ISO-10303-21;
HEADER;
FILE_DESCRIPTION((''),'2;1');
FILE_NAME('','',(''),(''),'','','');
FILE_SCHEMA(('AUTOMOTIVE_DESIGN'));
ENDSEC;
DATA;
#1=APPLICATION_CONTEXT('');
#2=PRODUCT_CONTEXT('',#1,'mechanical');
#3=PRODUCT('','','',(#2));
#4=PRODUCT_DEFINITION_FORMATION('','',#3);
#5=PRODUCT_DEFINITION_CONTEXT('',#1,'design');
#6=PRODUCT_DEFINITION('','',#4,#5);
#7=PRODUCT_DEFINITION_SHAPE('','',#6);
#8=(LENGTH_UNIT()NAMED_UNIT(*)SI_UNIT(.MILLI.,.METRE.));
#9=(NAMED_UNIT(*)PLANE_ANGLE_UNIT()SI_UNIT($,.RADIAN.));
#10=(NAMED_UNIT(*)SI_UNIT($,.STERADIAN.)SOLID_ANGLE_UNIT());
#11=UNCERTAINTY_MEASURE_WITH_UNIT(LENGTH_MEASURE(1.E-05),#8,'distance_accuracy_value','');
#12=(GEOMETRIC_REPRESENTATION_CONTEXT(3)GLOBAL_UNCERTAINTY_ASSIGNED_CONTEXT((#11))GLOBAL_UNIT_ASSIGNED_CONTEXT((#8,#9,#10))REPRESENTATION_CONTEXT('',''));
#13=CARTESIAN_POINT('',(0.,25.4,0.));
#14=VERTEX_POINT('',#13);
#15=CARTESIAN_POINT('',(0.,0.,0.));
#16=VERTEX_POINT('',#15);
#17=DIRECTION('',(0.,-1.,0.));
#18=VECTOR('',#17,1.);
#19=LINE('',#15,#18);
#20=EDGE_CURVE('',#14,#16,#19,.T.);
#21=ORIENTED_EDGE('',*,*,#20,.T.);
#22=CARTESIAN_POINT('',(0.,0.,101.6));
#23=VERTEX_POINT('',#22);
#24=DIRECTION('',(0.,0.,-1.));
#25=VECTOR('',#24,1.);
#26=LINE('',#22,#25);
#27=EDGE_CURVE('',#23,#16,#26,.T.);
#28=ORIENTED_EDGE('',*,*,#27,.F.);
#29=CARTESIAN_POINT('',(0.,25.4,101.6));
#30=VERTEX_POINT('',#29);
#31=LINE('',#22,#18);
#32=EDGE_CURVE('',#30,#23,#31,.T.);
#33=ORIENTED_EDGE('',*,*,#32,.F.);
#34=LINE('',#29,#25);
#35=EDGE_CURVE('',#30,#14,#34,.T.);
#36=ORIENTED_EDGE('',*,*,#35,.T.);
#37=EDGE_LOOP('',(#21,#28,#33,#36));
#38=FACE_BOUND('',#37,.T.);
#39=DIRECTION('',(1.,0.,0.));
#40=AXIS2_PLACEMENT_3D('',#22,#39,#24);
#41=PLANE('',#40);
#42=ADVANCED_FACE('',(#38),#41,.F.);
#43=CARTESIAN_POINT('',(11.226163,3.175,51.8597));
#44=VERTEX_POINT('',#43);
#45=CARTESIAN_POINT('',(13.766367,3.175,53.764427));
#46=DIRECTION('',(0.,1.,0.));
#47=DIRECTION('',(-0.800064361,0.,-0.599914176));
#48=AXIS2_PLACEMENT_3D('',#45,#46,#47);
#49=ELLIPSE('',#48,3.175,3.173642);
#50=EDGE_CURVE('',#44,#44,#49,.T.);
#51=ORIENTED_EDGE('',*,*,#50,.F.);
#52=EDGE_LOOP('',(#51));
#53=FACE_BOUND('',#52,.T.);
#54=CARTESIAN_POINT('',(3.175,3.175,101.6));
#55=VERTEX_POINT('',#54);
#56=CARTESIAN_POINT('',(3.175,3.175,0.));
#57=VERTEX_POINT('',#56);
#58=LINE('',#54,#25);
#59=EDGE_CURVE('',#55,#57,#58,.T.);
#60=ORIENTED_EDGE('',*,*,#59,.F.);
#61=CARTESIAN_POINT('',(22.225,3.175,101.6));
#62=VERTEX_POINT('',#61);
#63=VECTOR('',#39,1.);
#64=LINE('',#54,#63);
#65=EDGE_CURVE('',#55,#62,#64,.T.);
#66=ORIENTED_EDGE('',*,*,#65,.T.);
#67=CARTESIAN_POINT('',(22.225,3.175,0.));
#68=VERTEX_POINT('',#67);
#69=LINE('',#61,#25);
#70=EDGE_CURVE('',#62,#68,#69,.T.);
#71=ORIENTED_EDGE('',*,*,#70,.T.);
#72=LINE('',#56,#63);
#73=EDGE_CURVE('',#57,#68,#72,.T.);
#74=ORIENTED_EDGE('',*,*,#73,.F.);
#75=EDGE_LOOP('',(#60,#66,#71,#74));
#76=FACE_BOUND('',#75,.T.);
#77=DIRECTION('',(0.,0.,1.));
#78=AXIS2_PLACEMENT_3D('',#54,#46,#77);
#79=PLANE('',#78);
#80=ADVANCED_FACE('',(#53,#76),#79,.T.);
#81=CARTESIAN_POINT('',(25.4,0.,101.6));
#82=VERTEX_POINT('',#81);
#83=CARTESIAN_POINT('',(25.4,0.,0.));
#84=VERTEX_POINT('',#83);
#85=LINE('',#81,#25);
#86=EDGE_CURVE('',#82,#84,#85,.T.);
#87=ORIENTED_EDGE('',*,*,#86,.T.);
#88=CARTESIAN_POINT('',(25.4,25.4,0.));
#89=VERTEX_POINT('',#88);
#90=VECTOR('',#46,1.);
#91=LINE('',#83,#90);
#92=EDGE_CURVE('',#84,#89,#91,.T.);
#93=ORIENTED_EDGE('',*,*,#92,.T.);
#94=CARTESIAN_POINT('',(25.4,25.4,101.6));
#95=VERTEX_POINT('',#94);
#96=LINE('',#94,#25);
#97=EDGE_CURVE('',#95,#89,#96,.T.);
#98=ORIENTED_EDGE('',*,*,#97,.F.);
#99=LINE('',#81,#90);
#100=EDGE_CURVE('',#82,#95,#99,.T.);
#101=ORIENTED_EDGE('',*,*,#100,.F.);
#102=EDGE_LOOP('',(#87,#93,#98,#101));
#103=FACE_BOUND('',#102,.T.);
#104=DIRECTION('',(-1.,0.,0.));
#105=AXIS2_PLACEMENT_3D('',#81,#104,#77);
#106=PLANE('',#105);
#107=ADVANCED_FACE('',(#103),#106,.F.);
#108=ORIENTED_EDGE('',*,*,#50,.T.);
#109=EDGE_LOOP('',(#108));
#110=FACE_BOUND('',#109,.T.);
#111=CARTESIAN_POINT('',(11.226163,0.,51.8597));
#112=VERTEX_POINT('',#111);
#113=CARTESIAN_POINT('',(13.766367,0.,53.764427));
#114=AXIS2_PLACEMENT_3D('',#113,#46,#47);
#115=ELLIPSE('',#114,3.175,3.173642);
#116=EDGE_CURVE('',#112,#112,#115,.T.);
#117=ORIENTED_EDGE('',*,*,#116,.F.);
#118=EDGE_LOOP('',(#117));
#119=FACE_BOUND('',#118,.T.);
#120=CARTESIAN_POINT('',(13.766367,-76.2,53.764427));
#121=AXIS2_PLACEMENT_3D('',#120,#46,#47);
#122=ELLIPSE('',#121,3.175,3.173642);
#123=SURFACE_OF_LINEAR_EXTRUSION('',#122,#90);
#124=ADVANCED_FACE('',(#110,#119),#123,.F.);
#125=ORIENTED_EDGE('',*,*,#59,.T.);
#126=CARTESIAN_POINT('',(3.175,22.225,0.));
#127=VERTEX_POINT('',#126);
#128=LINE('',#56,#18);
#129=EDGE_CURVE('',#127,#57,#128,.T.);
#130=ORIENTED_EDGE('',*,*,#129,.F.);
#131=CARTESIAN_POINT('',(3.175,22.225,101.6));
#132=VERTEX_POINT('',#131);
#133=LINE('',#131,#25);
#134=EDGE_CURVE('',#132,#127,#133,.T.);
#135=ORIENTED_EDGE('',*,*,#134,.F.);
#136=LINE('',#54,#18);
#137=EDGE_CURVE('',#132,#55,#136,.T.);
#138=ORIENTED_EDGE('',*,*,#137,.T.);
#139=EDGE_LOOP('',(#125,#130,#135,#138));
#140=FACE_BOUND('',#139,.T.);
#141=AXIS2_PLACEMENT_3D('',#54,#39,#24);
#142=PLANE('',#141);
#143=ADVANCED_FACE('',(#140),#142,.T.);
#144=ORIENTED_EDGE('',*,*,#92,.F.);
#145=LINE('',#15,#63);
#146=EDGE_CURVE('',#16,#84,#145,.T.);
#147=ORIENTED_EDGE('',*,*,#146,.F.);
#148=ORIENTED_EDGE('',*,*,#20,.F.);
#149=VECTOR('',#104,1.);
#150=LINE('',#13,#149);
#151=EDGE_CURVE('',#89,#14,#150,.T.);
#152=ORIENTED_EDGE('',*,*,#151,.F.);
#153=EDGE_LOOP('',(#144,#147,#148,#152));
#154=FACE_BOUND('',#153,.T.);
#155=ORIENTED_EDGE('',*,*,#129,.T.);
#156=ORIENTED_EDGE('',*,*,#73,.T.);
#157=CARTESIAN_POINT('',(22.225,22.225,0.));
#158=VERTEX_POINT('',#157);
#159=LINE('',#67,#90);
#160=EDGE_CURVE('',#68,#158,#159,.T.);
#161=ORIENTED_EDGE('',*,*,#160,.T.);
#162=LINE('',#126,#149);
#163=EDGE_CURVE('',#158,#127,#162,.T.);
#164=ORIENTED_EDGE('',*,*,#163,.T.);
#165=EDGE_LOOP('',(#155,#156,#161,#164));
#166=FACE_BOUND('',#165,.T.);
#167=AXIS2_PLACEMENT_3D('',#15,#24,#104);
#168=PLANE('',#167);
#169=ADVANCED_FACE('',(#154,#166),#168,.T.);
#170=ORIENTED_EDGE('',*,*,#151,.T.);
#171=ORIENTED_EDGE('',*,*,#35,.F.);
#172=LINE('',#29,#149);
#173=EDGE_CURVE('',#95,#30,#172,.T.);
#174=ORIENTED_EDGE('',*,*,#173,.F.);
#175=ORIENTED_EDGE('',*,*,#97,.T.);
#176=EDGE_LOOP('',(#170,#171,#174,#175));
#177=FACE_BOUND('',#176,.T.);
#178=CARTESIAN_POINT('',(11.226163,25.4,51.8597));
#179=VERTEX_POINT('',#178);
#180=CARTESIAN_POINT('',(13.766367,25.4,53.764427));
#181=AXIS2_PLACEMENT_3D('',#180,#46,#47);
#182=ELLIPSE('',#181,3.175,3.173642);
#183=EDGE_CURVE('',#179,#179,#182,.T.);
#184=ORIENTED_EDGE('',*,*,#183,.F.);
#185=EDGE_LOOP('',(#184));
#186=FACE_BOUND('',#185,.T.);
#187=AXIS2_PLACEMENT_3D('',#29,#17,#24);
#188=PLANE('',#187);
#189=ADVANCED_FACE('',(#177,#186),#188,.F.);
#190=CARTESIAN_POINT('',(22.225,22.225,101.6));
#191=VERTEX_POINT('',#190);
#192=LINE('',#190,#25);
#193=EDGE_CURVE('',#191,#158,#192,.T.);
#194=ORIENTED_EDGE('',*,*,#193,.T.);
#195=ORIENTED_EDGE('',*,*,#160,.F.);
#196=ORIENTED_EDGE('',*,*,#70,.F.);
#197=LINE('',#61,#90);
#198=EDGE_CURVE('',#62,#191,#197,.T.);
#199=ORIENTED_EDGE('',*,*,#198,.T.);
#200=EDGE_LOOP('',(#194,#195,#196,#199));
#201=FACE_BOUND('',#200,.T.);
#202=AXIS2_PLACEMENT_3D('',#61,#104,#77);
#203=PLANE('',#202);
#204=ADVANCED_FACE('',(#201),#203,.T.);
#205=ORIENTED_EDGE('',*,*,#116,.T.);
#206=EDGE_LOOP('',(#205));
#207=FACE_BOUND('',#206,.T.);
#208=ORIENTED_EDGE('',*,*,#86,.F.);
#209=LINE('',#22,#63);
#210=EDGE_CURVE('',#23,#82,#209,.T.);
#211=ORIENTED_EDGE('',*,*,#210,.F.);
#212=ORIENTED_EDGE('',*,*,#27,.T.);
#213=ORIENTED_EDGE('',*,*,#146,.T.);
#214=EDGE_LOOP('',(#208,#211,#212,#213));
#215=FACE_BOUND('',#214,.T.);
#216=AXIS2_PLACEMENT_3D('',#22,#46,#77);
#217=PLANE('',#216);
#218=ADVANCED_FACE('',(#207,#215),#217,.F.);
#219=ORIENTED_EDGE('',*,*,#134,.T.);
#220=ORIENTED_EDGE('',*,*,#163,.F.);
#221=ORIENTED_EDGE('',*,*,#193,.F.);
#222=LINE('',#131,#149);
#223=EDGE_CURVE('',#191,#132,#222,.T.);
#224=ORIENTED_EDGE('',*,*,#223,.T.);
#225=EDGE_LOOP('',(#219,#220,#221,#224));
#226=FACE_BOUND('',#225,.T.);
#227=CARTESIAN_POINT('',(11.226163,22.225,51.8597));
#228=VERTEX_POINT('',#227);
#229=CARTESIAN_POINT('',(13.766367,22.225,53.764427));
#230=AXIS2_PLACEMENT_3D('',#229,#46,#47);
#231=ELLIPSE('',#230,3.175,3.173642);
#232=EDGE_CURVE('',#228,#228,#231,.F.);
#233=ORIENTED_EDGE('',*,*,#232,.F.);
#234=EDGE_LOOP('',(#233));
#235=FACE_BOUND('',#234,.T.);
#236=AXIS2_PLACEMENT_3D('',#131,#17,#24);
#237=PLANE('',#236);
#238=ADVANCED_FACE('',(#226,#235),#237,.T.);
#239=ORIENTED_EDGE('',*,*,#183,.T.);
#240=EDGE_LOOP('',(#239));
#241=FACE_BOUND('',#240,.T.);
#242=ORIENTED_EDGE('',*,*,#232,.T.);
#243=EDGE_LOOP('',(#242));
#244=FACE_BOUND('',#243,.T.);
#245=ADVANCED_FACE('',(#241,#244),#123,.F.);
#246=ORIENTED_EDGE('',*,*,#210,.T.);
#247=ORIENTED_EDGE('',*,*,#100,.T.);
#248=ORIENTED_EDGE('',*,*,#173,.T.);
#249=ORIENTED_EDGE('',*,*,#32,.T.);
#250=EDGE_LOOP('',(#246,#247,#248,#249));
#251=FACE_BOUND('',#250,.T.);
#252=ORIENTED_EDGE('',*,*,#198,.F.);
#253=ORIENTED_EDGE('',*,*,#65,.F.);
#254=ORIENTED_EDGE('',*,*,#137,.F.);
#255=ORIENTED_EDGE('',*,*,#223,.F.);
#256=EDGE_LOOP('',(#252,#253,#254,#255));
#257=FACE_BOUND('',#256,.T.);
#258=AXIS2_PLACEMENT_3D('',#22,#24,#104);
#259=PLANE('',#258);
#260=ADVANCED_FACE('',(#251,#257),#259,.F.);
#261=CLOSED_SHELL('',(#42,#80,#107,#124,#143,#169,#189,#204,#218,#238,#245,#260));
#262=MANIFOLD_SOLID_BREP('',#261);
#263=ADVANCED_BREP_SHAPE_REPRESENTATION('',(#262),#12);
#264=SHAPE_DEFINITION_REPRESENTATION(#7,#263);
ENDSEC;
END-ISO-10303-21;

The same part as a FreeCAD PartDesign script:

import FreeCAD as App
import Part
import Sketcher
Q = App.Units.Quantity

doc = App.newDocument("Part")
body = doc.addObject("PartDesign::Body", "Body")

# Sketch on XY plane
sketch1 = body.newObject("Sketcher::SketchObject", "Sketch")
sketch1.AttachmentSupport = (doc.getObject("XY_Plane"), [""])
sketch1.MapMode = "FlatFace"
sketch1.addGeometry(Part.LineSegment(App.Vector(0, 25, 0), App.Vector(0, 0, 0)), False)
sketch1.addGeometry(Part.LineSegment(App.Vector(0, 0, 0), App.Vector(25, 0, 0)), False)
sketch1.addGeometry(Part.LineSegment(App.Vector(25, 0, 0), App.Vector(25, 25, 0)), False)
sketch1.addGeometry(Part.LineSegment(App.Vector(25, 25, 0), App.Vector(0, 25, 0)), False)
sketch1.addGeometry(Part.LineSegment(App.Vector(22, 3, 0), App.Vector(3, 3, 0)), False)
sketch1.addGeometry(Part.LineSegment(App.Vector(3, 3, 0), App.Vector(3, 22, 0)), False)
sketch1.addGeometry(Part.LineSegment(App.Vector(3, 22, 0), App.Vector(22, 22, 0)), False)
sketch1.addGeometry(Part.LineSegment(App.Vector(22, 22, 0), App.Vector(22, 3, 0)), False)
sketch1.addConstraint(Sketcher.Constraint("Coincident", 0, 2, 1, 1))
sketch1.addConstraint(Sketcher.Constraint("Coincident", 1, 2, 2, 1))
sketch1.addConstraint(Sketcher.Constraint("Coincident", 2, 2, 3, 1))
sketch1.addConstraint(Sketcher.Constraint("Coincident", 3, 2, 0, 1))
sketch1.addConstraint(Sketcher.Constraint("Coincident", 4, 2, 5, 1))
sketch1.addConstraint(Sketcher.Constraint("Coincident", 5, 2, 6, 1))
sketch1.addConstraint(Sketcher.Constraint("Coincident", 6, 2, 7, 1))
sketch1.addConstraint(Sketcher.Constraint("Coincident", 7, 2, 4, 1))
sketch1.addConstraint(Sketcher.Constraint("Vertical", 0))
sketch1.addConstraint(Sketcher.Constraint("Horizontal", 1))
sketch1.addConstraint(Sketcher.Constraint("Vertical", 2))
sketch1.addConstraint(Sketcher.Constraint("Horizontal", 3))
sketch1.addConstraint(Sketcher.Constraint("Horizontal", 4))
sketch1.addConstraint(Sketcher.Constraint("Vertical", 5))
sketch1.addConstraint(Sketcher.Constraint("Horizontal", 6))
sketch1.addConstraint(Sketcher.Constraint("Vertical", 7))
sketch1.addConstraint(Sketcher.Constraint("Coincident", 0, 2, -1, 1))
sketch1.addConstraint(Sketcher.Constraint("Equal", 3, 0))
sketch1.addConstraint(Sketcher.Constraint("Equal", 6, 5))
sketch1.addConstraint(Sketcher.Constraint("DistanceX", 1, 1, 1, 2, Q("1 in")))
sketch1.addConstraint(Sketcher.Constraint("DistanceX", 4, 2, 4, 1, Q("0.75 in")))
sketch1.addConstraint(Sketcher.Constraint("DistanceX", -1, 1, 4, 2, Q("0.125 in")))
sketch1.addConstraint(Sketcher.Constraint("DistanceY", -1, 1, 4, 2, Q("0.125 in")))
pad1 = body.newObject("PartDesign::Pad", "Pad")
pad1.Profile = sketch1
pad1.Length = Q("4 in")

# Sketch on XZ plane
sketch2 = body.newObject("Sketcher::SketchObject", "Sketch001")
sketch2.AttachmentSupport = (doc.getObject("XZ_Plane"), [""])
sketch2.MapMode = "FlatFace"
sketch2.AttachmentOffset = App.Placement(App.Vector(0, 0, -1 * 25.4), App.Rotation())
sketch2.addGeometry(Part.Ellipse(App.Vector(16.306572, 55.669155, 0), App.Vector(11.862455, 56.303545, 0), App.Vector(13.766367, 53.764427, 0)), False)
sketch2.addConstraint(Sketcher.Constraint("Block", 0))
pocket1 = body.newObject("PartDesign::Pocket", "Pocket")
pocket1.Profile = sketch2
pocket1.Length = Q("4 in")
pocket1.Reversed = True

doc.recompute()
